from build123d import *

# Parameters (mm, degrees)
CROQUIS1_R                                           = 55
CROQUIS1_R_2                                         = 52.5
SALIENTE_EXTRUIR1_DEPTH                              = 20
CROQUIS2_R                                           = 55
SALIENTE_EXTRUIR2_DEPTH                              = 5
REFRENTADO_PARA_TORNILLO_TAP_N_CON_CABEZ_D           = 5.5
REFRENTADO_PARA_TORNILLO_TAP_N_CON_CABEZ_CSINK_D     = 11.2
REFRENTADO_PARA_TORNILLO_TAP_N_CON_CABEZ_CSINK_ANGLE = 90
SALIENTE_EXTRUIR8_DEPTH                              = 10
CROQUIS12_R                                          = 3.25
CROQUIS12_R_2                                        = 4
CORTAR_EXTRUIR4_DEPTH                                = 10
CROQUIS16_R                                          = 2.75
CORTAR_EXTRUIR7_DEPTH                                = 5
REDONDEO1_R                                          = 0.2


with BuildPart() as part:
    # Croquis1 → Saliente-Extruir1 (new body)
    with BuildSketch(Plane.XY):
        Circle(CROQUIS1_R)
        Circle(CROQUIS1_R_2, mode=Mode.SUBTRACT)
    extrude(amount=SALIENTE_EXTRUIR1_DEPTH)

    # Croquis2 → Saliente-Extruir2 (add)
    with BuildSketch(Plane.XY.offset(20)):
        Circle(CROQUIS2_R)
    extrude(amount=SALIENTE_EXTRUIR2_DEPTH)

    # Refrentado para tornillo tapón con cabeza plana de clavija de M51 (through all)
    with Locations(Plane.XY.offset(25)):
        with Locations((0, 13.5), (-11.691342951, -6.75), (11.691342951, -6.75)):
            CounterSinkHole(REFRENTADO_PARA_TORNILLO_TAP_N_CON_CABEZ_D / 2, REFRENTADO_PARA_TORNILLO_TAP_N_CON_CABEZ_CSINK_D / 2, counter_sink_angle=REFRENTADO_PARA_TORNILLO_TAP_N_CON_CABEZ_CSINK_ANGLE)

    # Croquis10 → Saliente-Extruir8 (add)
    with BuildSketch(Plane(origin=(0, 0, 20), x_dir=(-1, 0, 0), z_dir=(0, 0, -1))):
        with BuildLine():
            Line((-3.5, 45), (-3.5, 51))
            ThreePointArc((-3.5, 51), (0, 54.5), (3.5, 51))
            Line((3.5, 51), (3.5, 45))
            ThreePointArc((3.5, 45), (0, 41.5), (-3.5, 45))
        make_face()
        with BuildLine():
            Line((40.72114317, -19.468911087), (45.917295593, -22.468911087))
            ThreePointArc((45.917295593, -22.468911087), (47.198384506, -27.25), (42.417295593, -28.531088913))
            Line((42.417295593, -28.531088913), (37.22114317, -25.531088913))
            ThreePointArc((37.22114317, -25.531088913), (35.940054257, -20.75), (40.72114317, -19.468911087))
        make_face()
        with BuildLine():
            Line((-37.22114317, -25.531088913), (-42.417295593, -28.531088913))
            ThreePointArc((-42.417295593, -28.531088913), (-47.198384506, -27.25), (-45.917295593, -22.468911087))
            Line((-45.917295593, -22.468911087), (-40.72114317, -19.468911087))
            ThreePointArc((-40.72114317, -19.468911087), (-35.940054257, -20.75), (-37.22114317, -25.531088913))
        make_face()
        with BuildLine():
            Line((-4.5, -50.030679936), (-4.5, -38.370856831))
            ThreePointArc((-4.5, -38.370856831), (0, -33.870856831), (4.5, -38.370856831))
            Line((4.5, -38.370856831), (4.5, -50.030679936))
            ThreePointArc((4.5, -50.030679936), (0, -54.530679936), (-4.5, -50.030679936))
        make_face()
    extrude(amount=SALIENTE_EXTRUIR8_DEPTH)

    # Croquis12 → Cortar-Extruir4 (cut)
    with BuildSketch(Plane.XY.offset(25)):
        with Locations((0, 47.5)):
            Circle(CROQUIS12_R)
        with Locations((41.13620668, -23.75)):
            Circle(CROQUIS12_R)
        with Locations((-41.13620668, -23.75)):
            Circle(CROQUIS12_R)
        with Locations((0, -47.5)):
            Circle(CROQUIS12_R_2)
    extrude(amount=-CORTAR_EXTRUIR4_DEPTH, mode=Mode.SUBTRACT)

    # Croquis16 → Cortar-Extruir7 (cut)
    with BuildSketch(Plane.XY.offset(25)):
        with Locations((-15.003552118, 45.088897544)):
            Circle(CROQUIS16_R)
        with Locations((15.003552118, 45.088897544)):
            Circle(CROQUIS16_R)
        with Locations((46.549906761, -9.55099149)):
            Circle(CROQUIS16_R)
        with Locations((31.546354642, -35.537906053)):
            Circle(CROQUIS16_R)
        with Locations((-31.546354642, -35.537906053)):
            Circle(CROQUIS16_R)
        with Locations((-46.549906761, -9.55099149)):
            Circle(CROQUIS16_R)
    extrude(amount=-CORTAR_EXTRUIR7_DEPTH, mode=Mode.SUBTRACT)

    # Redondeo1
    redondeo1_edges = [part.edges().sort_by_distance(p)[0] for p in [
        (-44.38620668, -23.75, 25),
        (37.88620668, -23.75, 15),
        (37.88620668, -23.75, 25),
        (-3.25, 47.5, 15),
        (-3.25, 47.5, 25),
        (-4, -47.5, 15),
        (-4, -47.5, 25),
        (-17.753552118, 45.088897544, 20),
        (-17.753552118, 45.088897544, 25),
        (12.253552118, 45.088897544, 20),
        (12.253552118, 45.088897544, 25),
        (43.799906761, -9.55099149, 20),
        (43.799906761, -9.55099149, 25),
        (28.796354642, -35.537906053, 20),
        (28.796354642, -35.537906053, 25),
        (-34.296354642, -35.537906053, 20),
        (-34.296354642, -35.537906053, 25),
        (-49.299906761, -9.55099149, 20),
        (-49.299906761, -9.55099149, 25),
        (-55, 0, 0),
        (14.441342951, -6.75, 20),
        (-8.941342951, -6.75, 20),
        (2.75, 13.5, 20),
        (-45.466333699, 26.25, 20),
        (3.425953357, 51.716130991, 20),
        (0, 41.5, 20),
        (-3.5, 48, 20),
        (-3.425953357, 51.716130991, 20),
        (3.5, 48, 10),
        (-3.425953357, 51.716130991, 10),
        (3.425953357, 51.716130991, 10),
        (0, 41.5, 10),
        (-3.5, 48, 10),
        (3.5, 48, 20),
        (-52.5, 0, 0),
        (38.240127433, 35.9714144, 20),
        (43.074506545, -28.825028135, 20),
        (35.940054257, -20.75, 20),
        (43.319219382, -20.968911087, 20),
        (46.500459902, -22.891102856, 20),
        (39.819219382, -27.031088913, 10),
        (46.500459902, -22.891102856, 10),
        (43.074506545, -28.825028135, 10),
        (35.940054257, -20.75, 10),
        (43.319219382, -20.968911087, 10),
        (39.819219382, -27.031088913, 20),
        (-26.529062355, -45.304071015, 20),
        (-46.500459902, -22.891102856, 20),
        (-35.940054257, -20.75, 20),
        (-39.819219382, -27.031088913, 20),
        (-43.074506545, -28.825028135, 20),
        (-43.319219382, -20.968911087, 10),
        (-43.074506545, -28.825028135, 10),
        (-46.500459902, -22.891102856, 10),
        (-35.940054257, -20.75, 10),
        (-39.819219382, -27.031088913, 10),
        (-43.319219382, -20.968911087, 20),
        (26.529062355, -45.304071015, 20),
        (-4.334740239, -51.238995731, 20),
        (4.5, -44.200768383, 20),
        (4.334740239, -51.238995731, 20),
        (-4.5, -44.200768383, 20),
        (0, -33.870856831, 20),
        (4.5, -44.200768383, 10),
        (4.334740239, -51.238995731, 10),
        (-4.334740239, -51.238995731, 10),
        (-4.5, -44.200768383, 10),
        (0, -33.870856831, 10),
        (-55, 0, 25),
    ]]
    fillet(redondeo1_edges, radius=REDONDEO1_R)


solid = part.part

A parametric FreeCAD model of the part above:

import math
import FreeCAD as App
import Part
import Sketcher
Q = App.Units.Quantity


def edges_at(feature, points):
    """Names of the edges that pass closest to the given points."""
    edges = feature.Shape.Edges
    near = lambda p: min(range(len(edges)), key=lambda i: edges[i].distToShape(Part.Vertex(*p))[0])
    return sorted({f"Edge{near(p) + 1}" for p in points})

doc = App.newDocument("Part")
params = doc.addObject("Spreadsheet::Sheet", "Params")
for row, (alias, value) in enumerate([
    ("sketch1_diameter", "110 mm"),
    ("sketch1_diameter2", "105 mm"),
    ("pad1_length", "20 mm"),
    ("sketch2_diameter", "110 mm"),
    ("pad2_length", "5 mm"),
    ("sketch3_diameter", "5.5 mm"),
    ("hole_diameter", "5.5 mm"),
    ("hole_csink_diameter", "11.2 mm"),
    ("sketch4_radius", "3.5 mm"),
    ("sketch4_radius2", "4.5 mm"),
    ("sketch4_height", "6 mm"),
    ("sketch4_length", "6 mm"),
    ("pad3_length", "10 mm"),
    ("sketch5_diameter", "8 mm"),
    ("sketch5_diameter2", "6.5 mm"),
    ("pocket1_length", "10 mm"),
    ("sketch6_diameter", "5.5 mm"),
    ("pocket2_length", "5 mm"),
    ("fillet_radius", "0.2 mm"),
], start=1):
    params.set(f"A{row}", alias)
    params.set(f"B{row}", "=" + value)
    params.setAlias(f"B{row}", alias)

body = doc.addObject("PartDesign::Body", "Body")

sketch1 = body.newObject("Sketcher::SketchObject", "Sketch")
sketch1.AttachmentSupport = (doc.getObject("XY_Plane"), [""])
sketch1.MapMode = "FlatFace"
sketch1.addGeometry([
    Part.Circle(App.Vector(0, 0, 0), App.Vector(0, 0, 1), 55),
    Part.Circle(App.Vector(0, 0, 0), App.Vector(0, 0, 1), 52.5),
], False)
sketch1.addConstraint([
    Sketcher.Constraint("Coincident", 0, 3, -1, 1),
    Sketcher.Constraint("Coincident", 1, 3, -1, 1),
    Sketcher.Constraint("Diameter", 0, 110.0),
    Sketcher.Constraint("Diameter", 1, 105.0),
])
sketch1.setExpression("Constraints[2]", "Params.sketch1_diameter")
sketch1.setExpression("Constraints[3]", "Params.sketch1_diameter2")
pad1 = body.newObject("PartDesign::Pad", "Pad")
pad1.Profile = sketch1
pad1.setExpression("Length", "Params.pad1_length")

sketch2 = body.newObject("Sketcher::SketchObject", "Sketch001")
sketch2.AttachmentSupport = (doc.getObject("XY_Plane"), [""])
sketch2.MapMode = "FlatFace"
sketch2.AttachmentOffset = App.Placement(App.Vector(0, 0, 20), App.Rotation())
sketch2.addGeometry(Part.Circle(App.Vector(0, 0, 0), App.Vector(0, 0, 1), 55), False)
sketch2.addConstraint([
    Sketcher.Constraint("Coincident", 0, 3, -1, 1),
    Sketcher.Constraint("Diameter", 0, 110.0),
])
sketch2.setExpression("Constraints[1]", "Params.sketch2_diameter")
pad2 = body.newObject("PartDesign::Pad", "Pad001")
pad2.Profile = sketch2
pad2.setExpression("Length", "Params.pad2_length")

sketch3 = body.newObject("Sketcher::SketchObject", "Sketch002")
sketch3.AttachmentSupport = (doc.getObject("XY_Plane"), [""])
sketch3.MapMode = "FlatFace"
sketch3.AttachmentOffset = App.Placement(App.Vector(0, 0, 25), App.Rotation())
sketch3.addGeometry([
    Part.Circle(App.Vector(0, 13.5, 0), App.Vector(0, 0, 1), 2.75),
    Part.Circle(App.Vector(-11.691343, -6.75, 0), App.Vector(0, 0, 1), 2.75),
    Part.Circle(App.Vector(11.691343, -6.75, 0), App.Vector(0, 0, 1), 2.75),
], False)
sketch3.addConstraint([
    Sketcher.Constraint("Equal", 0, 1),
    Sketcher.Constraint("Equal", 1, 2),
    Sketcher.Constraint("Symmetric", 1, 3, 2, 3, -2),
    Sketcher.Constraint("PointOnObject", 0, 3, -2),
    Sketcher.Constraint("Diameter", 0, 5.5),
    Sketcher.Constraint("DistanceY", -1, 1, 0, 3, 13.5),
    Sketcher.Constraint("DistanceY", 1, 3, -1, 1, 6.75),
    Sketcher.Constraint("DistanceX", 1, 3, -1, 1, 11.691343),
])
sketch3.setExpression("Constraints[4]", "Params.sketch3_diameter")
doc.recompute()
hole = body.newObject("PartDesign::Hole", "Hole")
hole.Profile = sketch3
hole.ThreadType = "None"
hole.setExpression("Diameter", "Params.hole_diameter")
hole.DepthType = "ThroughAll"
hole.HoleCutType = "Countersink"
hole.setExpression("HoleCutDiameter", "Params.hole_csink_diameter")
hole.HoleCutCountersinkAngle = 90

sketch4 = body.newObject("Sketcher::SketchObject", "Sketch003")
sketch4.AttachmentSupport = (doc.getObject("XY_Plane"), [""])
sketch4.MapMode = "FlatFace"
sketch4.AttachmentOffset = App.Placement(App.Vector(0, 0, 20), App.Rotation())
sketch4.addGeometry([
    Part.LineSegment(App.Vector(3.5, 51, 0), App.Vector(3.5, 45, 0)),
    Part.ArcOfCircle(Part.Circle(App.Vector(0, 45, 0), App.Vector(0, 0, 1), 3.5), math.radians(180), math.radians(360)),
    Part.LineSegment(App.Vector(-3.5, 45, 0), App.Vector(-3.5, 51, 0)),
    Part.ArcOfCircle(Part.Circle(App.Vector(0, 51, 0), App.Vector(0, 0, 1), 3.5), math.radians(0), math.radians(180)),
    Part.LineSegment(App.Vector(-45.917296, -22.468911, 0), App.Vector(-40.721143, -19.468911, 0)),
    Part.ArcOfCircle(Part.Circle(App.Vector(-38.971143, -22.5, 0), App.Vector(0, 0, 1), 3.5), math.radians(-60), math.radians(120)),
    Part.LineSegment(App.Vector(-37.221143, -25.531089, 0), App.Vector(-42.417296, -28.531089, 0)),
    Part.ArcOfCircle(Part.Circle(App.Vector(-44.167296, -25.5, 0), App.Vector(0, 0, 1), 3.5), math.radians(120), math.radians(300)),
    Part.LineSegment(App.Vector(42.417296, -28.531089, 0), App.Vector(37.221143, -25.531089, 0)),
    Part.ArcOfCircle(Part.Circle(App.Vector(38.971143, -22.5, 0), App.Vector(0, 0, 1), 3.5), math.radians(60), math.radians(240)),
    Part.LineSegment(App.Vector(40.721143, -19.468911, 0), App.Vector(45.917296, -22.468911, 0)),
    Part.ArcOfCircle(Part.Circle(App.Vector(44.167296, -25.5, 0), App.Vector(0, 0, 1), 3.5), math.radians(-120), math.radians(60)),
    Part.LineSegment(App.Vector(4.5, -38.370857, 0), App.Vector(4.5, -50.03068, 0)),
    Part.ArcOfCircle(Part.Circle(App.Vector(0, -50.03068, 0), App.Vector(0, 0, 1), 4.5), math.radians(180), math.radians(360)),
    Part.LineSegment(App.Vector(-4.5, -50.03068, 0), App.Vector(-4.5, -38.370857, 0)),
    Part.ArcOfCircle(Part.Circle(App.Vector(0, -38.370857, 0), App.Vector(0, 0, 1), 4.5), math.radians(0), math.radians(180)),
], False)
sketch4.addConstraint([
    Sketcher.Constraint("Tangent", 0, 2, 1, 2),
    Sketcher.Constraint("Tangent", 1, 1, 2, 1),
    Sketcher.Constraint("Tangent", 2, 2, 3, 2),
    Sketcher.Constraint("Tangent", 3, 1, 0, 1),
    Sketcher.Constraint("Tangent", 4, 2, 5, 2),
    Sketcher.Constraint("Tangent", 5, 1, 6, 1),
    Sketcher.Constraint("Tangent", 6, 2, 7, 2),
    Sketcher.Constraint("Tangent", 7, 1, 4, 1),
    Sketcher.Constraint("Tangent", 8, 2, 9, 2),
    Sketcher.Constraint("Tangent", 9, 1, 10, 1),
    Sketcher.Constraint("Tangent", 10, 2, 11, 2),
    Sketcher.Constraint("Tangent", 11, 1, 8, 1),
    Sketcher.Constraint("Tangent", 12, 2, 13, 2),
    Sketcher.Constraint("Tangent", 13, 1, 14, 1),
    Sketcher.Constraint("Tangent", 14, 2, 15, 2),
    Sketcher.Constraint("Tangent", 15, 1, 12, 1),
    Sketcher.Constraint("Vertical", 0),
    Sketcher.Constraint("Vertical", 2),
    Sketcher.Constraint("Vertical", 12),
    Sketcher.Constraint("Vertical", 14),
    Sketcher.Constraint("Equal", 3, 5),
    Sketcher.Constraint("Equal", 5, 7),
    Sketcher.Constraint("Equal", 7, 9),
    Sketcher.Constraint("Equal", 9, 11),
    Sketcher.Constraint("Symmetric", 5, 3, 9, 3, -2),
    Sketcher.Constraint("Symmetric", 7, 3, 11, 3, -2),
    Sketcher.Constraint("PointOnObject", 1, 3, -2),
    Sketcher.Constraint("PointOnObject", 13, 3, -2),
    Sketcher.Constraint("Radius", 1, 3.5),
    Sketcher.Constraint("Radius", 13, 4.5),
    Sketcher.Constraint("DistanceY", 0, 2, 0, 1, 6.0),
    Sketcher.Constraint("Angle", 4, Q("30 deg")),
    Sketcher.Constraint("Distance", 4, 6.0),
    Sketcher.Constraint("DistanceY", -1, 1, 1, 3, 45.0),
    Sketcher.Constraint("DistanceY", 5, 3, -1, 1, 22.5),
    Sketcher.Constraint("DistanceY", 12, 2, 12, 1, 11.659823),
    Sketcher.Constraint("DistanceY", 13, 3, -1, 1, 50.03068),
    Sketcher.Constraint("DistanceX", 7, 3, 9, 3, 83.138439),
])
sketch4.setExpression("Constraints[28]", "Params.sketch4_radius")
sketch4.setExpression("Constraints[29]", "Params.sketch4_radius2")
sketch4.setExpression("Constraints[30]", "Params.sketch4_height")
sketch4.setExpression("Constraints[32]", "Params.sketch4_length")
pad3 = body.newObject("PartDesign::Pad", "Pad002")
pad3.Profile = sketch4
pad3.setExpression("Length", "Params.pad3_length")
pad3.Reversed = True

sketch5 = body.newObject("Sketcher::SketchObject", "Sketch004")
sketch5.AttachmentSupport = (doc.getObject("XY_Plane"), [""])
sketch5.MapMode = "FlatFace"
sketch5.AttachmentOffset = App.Placement(App.Vector(0, 0, 25), App.Rotation())
sketch5.addGeometry([
    Part.Circle(App.Vector(0, 47.5, 0), App.Vector(0, 0, 1), 3.25),
    Part.Circle(App.Vector(41.136207, -23.75, 0), App.Vector(0, 0, 1), 3.25),
    Part.Circle(App.Vector(-41.136207, -23.75, 0), App.Vector(0, 0, 1), 3.25),
    Part.Circle(App.Vector(0, -47.5, 0), App.Vector(0, 0, 1), 4),
], False)
sketch5.addConstraint([
    Sketcher.Constraint("Equal", 0, 1),
    Sketcher.Constraint("Equal", 1, 2),
    Sketcher.Constraint("Symmetric", 0, 3, 3, 3, -1, 1),
    Sketcher.Constraint("Symmetric", 1, 3, 2, 3, -2),
    Sketcher.Constraint("PointOnObject", 0, 3, -2),
    Sketcher.Constraint("Diameter", 3, 8.0),
    Sketcher.Constraint("Diameter", 0, 6.5),
    Sketcher.Constraint("DistanceY", 3, 3, 0, 3, 95.0),
    Sketcher.Constraint("DistanceY", 1, 3, -1, 1, 23.75),
    Sketcher.Constraint("DistanceX", -1, 1, 1, 3, 41.136207),
])
sketch5.setExpression("Constraints[5]", "Params.sketch5_diameter")
sketch5.setExpression("Constraints[6]", "Params.sketch5_diameter2")
pocket1 = body.newObject("PartDesign::Pocket", "Pocket")
pocket1.Profile = sketch5
pocket1.setExpression("Length", "Params.pocket1_length")

sketch6 = body.newObject("Sketcher::SketchObject", "Sketch005")
sketch6.AttachmentSupport = (doc.getObject("XY_Plane"), [""])
sketch6.MapMode = "FlatFace"
sketch6.AttachmentOffset = App.Placement(App.Vector(0, 0, 25), App.Rotation())
sketch6.addGeometry([
    Part.Circle(App.Vector(-15.003552, 45.088898, 0), App.Vector(0, 0, 1), 2.75),
    Part.Circle(App.Vector(15.003552, 45.088898, 0), App.Vector(0, 0, 1), 2.75),
    Part.Circle(App.Vector(46.549907, -9.550991, 0), App.Vector(0, 0, 1), 2.75),
    Part.Circle(App.Vector(31.546355, -35.537906, 0), App.Vector(0, 0, 1), 2.75),
    Part.Circle(App.Vector(-31.546355, -35.537906, 0), App.Vector(0, 0, 1), 2.75),
    Part.Circle(App.Vector(-46.549907, -9.550991, 0), App.Vector(0, 0, 1), 2.75),
], False)
sketch6.addConstraint([
    Sketcher.Constraint("Equal", 0, 1),
    Sketcher.Constraint("Equal", 1, 2),
    Sketcher.Constraint("Equal", 2, 3),
    Sketcher.Constraint("Equal", 3, 4),
    Sketcher.Constraint("Equal", 4, 5),
    Sketcher.Constraint("Symmetric", 0, 3, 1, 3, -2),
    Sketcher.Constraint("Symmetric", 3, 3, 4, 3, -2),
    Sketcher.Constraint("Symmetric", 2, 3, 5, 3, -2),
    Sketcher.Constraint("Diameter", 0, 5.5),
    Sketcher.Constraint("DistanceY", 2, 3, -1, 1, 9.550991),
    Sketcher.Constraint("DistanceY", 2, 3, 1, 3, 54.639889),
    Sketcher.Constraint("DistanceX", 0, 3, 2, 3, 61.553459),
    Sketcher.Constraint("DistanceX", 4, 3, 3, 3, 63.092709),
    Sketcher.Constraint("DistanceX", 4, 3, 2, 3, 78.096261),
    Sketcher.Constraint("DistanceY", 3, 3, -1, 1, 35.537906),
])
sketch6.setExpression("Constraints[8]", "Params.sketch6_diameter")
pocket2 = body.newObject("PartDesign::Pocket", "Pocket001")
pocket2.Profile = sketch6
pocket2.setExpression("Length", "Params.pocket2_length")
doc.recompute()

fillet = body.newObject("PartDesign::Fillet", "Fillet")
fillet.Base = (pocket2, edges_at(pocket2, [
    (-44.386, -23.75, 25),
    (37.886, -23.75, 15),
    (37.886, -23.75, 25),
    (-3.25, 47.5, 15),
    (-3.25, 47.5, 25),
    (-4, -47.5, 15),
    (-4, -47.5, 25),
    (-17.754, 45.089, 20),
    (-17.754, 45.089, 25),
    (12.254, 45.089, 20),
    (12.254, 45.089, 25),
    (43.8, -9.551, 20),
    (43.8, -9.551, 25),
    (28.796, -35.538, 20),
    (28.796, -35.538, 25),
    (-34.296, -35.538, 20),
    (-34.296, -35.538, 25),
    (-49.3, -9.551, 20),
    (-49.3, -9.551, 25),
    (-55, 0, 0),
    (14.441, -6.75, 20),
    (-8.941, -6.75, 20),
    (2.75, 13.5, 20),
    (-45.466, 26.25, 20),
    (3.426, 51.716, 20),
    (0, 41.5, 20),
    (-3.5, 48, 20),
    (-3.426, 51.716, 20),
    (3.5, 48, 10),
    (-3.426, 51.716, 10),
    (3.426, 51.716, 10),
    (0, 41.5, 10),
    (-3.5, 48, 10),
    (3.5, 48, 20),
    (-52.5, 0, 0),
    (38.24, 35.971, 20),
    (43.075, -28.825, 20),
    (35.94, -20.75, 20),
    (43.319, -20.969, 20),
    (46.5, -22.891, 20),
    (39.819, -27.031, 10),
    (46.5, -22.891, 10),
    (43.075, -28.825, 10),
    (35.94, -20.75, 10),
    (43.319, -20.969, 10),
    (39.819, -27.031, 20),
    (-26.529, -45.304, 20),
    (-46.5, -22.891, 20),
    (-35.94, -20.75, 20),
    (-39.819, -27.031, 20),
    (-43.075, -28.825, 20),
    (-43.319, -20.969, 10),
    (-43.075, -28.825, 10),
    (-46.5, -22.891, 10),
    (-35.94, -20.75, 10),
    (-39.819, -27.031, 10),
    (-43.319, -20.969, 20),
    (26.529, -45.304, 20),
    (-4.335, -51.239, 20),
    (4.5, -44.201, 20),
    (4.335, -51.239, 20),
    (-4.5, -44.201, 20),
    (0, -33.871, 20),
    (4.5, -44.201, 10),
    (4.335, -51.239, 10),
    (-4.335, -51.239, 10),
    (-4.5, -44.201, 10),
    (0, -33.871, 10),
    (-55, 0, 25),
]))
fillet.setExpression("Radius", "Params.fillet_radius")

doc.recompute()
